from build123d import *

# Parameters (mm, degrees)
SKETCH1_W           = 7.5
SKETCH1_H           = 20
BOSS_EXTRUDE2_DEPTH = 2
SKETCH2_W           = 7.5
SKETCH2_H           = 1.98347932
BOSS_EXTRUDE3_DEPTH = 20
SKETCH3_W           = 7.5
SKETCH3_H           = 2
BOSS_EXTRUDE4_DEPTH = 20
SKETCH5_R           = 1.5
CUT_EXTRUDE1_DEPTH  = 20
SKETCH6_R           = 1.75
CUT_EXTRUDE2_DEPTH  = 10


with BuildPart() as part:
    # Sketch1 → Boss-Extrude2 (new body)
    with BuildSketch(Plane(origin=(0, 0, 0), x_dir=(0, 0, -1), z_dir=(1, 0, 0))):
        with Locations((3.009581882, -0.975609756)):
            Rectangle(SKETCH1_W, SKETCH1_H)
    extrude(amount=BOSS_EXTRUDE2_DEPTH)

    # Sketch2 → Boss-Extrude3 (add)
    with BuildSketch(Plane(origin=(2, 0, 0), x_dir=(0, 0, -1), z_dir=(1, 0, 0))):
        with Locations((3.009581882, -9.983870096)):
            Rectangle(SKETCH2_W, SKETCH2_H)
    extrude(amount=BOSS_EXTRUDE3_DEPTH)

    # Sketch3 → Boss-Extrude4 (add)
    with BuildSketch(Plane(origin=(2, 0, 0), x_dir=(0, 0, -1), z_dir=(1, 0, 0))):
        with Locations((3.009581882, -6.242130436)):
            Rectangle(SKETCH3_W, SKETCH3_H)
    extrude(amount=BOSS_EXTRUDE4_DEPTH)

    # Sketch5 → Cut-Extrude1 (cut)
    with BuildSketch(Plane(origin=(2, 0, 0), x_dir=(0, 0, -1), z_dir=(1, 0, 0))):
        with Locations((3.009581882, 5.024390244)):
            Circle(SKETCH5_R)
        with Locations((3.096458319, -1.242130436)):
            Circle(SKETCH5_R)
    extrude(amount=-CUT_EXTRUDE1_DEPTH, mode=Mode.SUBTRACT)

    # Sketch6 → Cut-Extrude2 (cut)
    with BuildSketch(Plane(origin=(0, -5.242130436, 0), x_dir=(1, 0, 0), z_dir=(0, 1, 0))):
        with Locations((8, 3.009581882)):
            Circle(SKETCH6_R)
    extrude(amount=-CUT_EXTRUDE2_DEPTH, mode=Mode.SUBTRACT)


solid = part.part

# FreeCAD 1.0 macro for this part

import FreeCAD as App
import Part
import Sketcher


def add_polygon(sketch, points):
    """Adds a closed chain of lines whose ends are joined by coincident constraints."""
    first, n = sketch.GeometryCount, len(points)
    for a, b in zip(points, points[1:] + points[:1]):
        sketch.addGeometry(Part.LineSegment(App.Vector(*a, 0), App.Vector(*b, 0)), False)
    for i in range(n):
        sketch.addConstraint(Sketcher.Constraint("Coincident", first + i, 2, first + (i + 1) % n, 1))

doc = App.newDocument("Part")
body = doc.addObject("PartDesign::Body", "Body")

sketch1 = doc.addObject("Sketcher::SketchObject", "Sketch")
body.addObject(sketch1)
sketch1.AttachmentSupport = (doc.YZ_Plane, [""])
sketch1.MapMode = "FlatFace"
add_polygon(sketch1, [(9, 1), (-11, 1), (-11, -7), (9, -7)])
sketch1.addConstraint(Sketcher.Constraint("Horizontal", 0))
sketch1.addConstraint(Sketcher.Constraint("Vertical", 1))
sketch1.addConstraint(Sketcher.Constraint("Horizontal", 2))
sketch1.addConstraint(Sketcher.Constraint("Vertical", 3))
sketch1.addConstraint(Sketcher.Constraint("DistanceX", 0, 2, 0, 1, 20.0))
sketch1.addConstraint(Sketcher.Constraint("DistanceY", 1, 2, 1, 1, 7.5))
sketch1.addConstraint(Sketcher.Constraint("DistanceX", 0, 2, -1, 1, 10.97561))
sketch1.addConstraint(Sketcher.Constraint("DistanceY", -1, 1, 0, 2, 0.740418))
pad1 = doc.addObject("PartDesign::Pad", "Pad")
body.addObject(pad1)
pad1.Profile = sketch1
pad1.Length = 2

sketch2 = doc.addObject("Sketcher::SketchObject", "Sketch001")
body.addObject(sketch2)
sketch2.AttachmentSupport = (doc.YZ_Plane, [""])
sketch2.MapMode = "FlatFace"
sketch2.AttachmentOffset = App.Placement(App.Vector(0, 0, 2), App.Rotation())
add_polygon(sketch2, [(-9, 0.7), (-11, 0.7), (-11, -6.8), (-9, -6.8)])
sketch2.addConstraint(Sketcher.Constraint("Horizontal", 0))
sketch2.addConstraint(Sketcher.Constraint("Vertical", 1))
sketch2.addConstraint(Sketcher.Constraint("Horizontal", 2))
sketch2.addConstraint(Sketcher.Constraint("Vertical", 3))
sketch2.addConstraint(Sketcher.Constraint("DistanceY", 1, 2, 1, 1, 7.5))
sketch2.addConstraint(Sketcher.Constraint("DistanceX", 0, 2, 0, 1, 1.983479))
sketch2.addConstraint(Sketcher.Constraint("DistanceX", 0, 2, -1, 1, 10.97561))
sketch2.addConstraint(Sketcher.Constraint("DistanceY", -1, 1, 0, 2, 0.740418))
pad2 = doc.addObject("PartDesign::Pad", "Pad001")
body.addObject(pad2)
pad2.Profile = sketch2
pad2.Length = 20

sketch3 = doc.addObject("Sketcher::SketchObject", "Sketch002")
body.addObject(sketch3)
sketch3.AttachmentSupport = (doc.YZ_Plane, [""])
sketch3.MapMode = "FlatFace"
sketch3.AttachmentOffset = App.Placement(App.Vector(0, 0, 2), App.Rotation())
add_polygon(sketch3, [(-5.2, 0.7), (-7.2, 0.7), (-7.2, -6.8), (-5.2, -6.8)])
sketch3.addConstraint(Sketcher.Constraint("Horizontal", 0))
sketch3.addConstraint(Sketcher.Constraint("Vertical", 1))
sketch3.addConstraint(Sketcher.Constraint("Horizontal", 2))
sketch3.addConstraint(Sketcher.Constraint("Vertical", 3))
sketch3.addConstraint(Sketcher.Constraint("DistanceX", 0, 2, 0, 1, 2.0))
sketch3.addConstraint(Sketcher.Constraint("DistanceY", 1, 2, 1, 1, 7.5))
sketch3.addConstraint(Sketcher.Constraint("DistanceX", 0, 2, -1, 1, 7.24213))
sketch3.addConstraint(Sketcher.Constraint("DistanceY", -1, 1, 0, 2, 0.740418))
pad3 = doc.addObject("PartDesign::Pad", "Pad002")
body.addObject(pad3)
pad3.Profile = sketch3
pad3.Length = 20

sketch4 = doc.addObject("Sketcher::SketchObject", "Sketch003")
body.addObject(sketch4)
sketch4.AttachmentSupport = (doc.YZ_Plane, [""])
sketch4.MapMode = "FlatFace"
sketch4.AttachmentOffset = App.Placement(App.Vector(0, 0, 2), App.Rotation())
sketch4.addGeometry(Part.Circle(App.Vector(5, -3, 0), App.Vector(0, 0, 1), 1.5), False)
sketch4.addGeometry(Part.Circle(App.Vector(-1.2, -3.1, 0), App.Vector(0, 0, 1), 1.5), False)
sketch4.addConstraint(Sketcher.Constraint("Equal", 0, 1))
sketch4.addConstraint(Sketcher.Constraint("Diameter", 0, 3.0))
sketch4.addConstraint(Sketcher.Constraint("DistanceX", -1, 1, 0, 3, 5.02439))
sketch4.addConstraint(Sketcher.Constraint("DistanceY", 0, 3, -1, 1, 3.009582))
sketch4.addConstraint(Sketcher.Constraint("DistanceX", 1, 3, -1, 1, 1.24213))
sketch4.addConstraint(Sketcher.Constraint("DistanceY", 1, 3, -1, 1, 3.096458))
pocket1 = doc.addObject("PartDesign::Pocket", "Pocket")
body.addObject(pocket1)
pocket1.Profile = sketch4
pocket1.Length = 20

sketch5 = doc.addObject("Sketcher::SketchObject", "Sketch004")
body.addObject(sketch5)
sketch5.AttachmentSupport = (doc.XZ_Plane, [""])
sketch5.MapMode = "FlatFace"
sketch5.AttachmentOffset = App.Placement(App.Vector(0, 0, 5.24213), App.Rotation())
sketch5.addGeometry(Part.Circle(App.Vector(8, -3, 0), App.Vector(0, 0, 1), 1.8), False)
sketch5.addConstraint(Sketcher.Constraint("Diameter", 0, 3.5))
sketch5.addConstraint(Sketcher.Constraint("DistanceX", -1, 1, 0, 3, 8.0))
sketch5.addConstraint(Sketcher.Constraint("DistanceY", 0, 3, -1, 1, 3.009582))
pocket2 = doc.addObject("PartDesign::Pocket", "Pocket001")
body.addObject(pocket2)
pocket2.Profile = sketch5
pocket2.Length = 10
pocket2.Reversed = True

doc.recompute()
